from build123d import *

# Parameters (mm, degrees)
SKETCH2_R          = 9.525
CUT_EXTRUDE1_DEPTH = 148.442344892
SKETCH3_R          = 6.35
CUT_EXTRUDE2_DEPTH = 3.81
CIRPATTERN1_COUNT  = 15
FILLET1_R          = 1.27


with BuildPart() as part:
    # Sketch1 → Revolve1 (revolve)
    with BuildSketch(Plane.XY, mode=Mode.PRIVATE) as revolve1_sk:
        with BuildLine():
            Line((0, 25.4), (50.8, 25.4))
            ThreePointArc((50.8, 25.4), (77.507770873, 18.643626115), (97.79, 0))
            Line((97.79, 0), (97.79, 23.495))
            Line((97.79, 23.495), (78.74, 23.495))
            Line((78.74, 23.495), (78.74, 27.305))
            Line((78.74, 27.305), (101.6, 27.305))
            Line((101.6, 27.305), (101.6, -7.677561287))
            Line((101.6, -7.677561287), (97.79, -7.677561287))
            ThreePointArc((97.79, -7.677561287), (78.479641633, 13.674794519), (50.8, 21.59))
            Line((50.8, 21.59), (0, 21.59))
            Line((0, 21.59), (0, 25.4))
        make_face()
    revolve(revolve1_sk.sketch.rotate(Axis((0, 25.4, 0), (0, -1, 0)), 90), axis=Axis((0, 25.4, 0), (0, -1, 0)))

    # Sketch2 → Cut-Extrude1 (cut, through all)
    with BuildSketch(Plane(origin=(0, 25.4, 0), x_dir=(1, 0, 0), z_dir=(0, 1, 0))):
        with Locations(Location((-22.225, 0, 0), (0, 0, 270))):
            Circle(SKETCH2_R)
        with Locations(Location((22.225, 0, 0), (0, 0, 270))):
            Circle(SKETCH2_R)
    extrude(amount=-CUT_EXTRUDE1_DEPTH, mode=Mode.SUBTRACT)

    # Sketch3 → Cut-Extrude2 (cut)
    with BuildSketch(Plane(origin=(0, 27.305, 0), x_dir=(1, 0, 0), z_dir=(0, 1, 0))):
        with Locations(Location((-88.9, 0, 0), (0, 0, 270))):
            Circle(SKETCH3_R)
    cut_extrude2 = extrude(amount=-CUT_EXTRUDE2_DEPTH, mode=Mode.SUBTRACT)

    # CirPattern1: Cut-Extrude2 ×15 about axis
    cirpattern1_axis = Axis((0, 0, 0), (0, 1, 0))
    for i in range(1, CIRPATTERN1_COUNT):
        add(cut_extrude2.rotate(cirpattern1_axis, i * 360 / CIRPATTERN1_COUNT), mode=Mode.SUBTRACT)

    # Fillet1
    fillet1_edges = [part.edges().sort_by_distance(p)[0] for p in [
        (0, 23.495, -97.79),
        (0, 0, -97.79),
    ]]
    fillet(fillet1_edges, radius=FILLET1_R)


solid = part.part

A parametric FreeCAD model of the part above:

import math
import FreeCAD as App
import Part
import Sketcher
Q = App.Units.Quantity


def edges_at(feature, points):
    """Names of the edges that pass closest to the given points."""
    edges = feature.Shape.Edges
    near = lambda p: min(range(len(edges)), key=lambda i: edges[i].distToShape(Part.Vertex(*p))[0])
    return sorted({f"Edge{near(p) + 1}" for p in points})

doc = App.newDocument("Part")
body = doc.addObject("PartDesign::Body", "Body")

sketch1 = body.newObject("Sketcher::SketchObject", "Sketch")
sketch1.AttachmentSupport = (doc.getObject("XY_Plane"), [""])
sketch1.MapMode = "FlatFace"
sketch1.addGeometry([
    Part.LineSegment(App.Vector(50.8, 25.4, 0), App.Vector(0, 25.4, 0)),
    Part.LineSegment(App.Vector(0, 25.4, 0), App.Vector(0, 21.59, 0)),
    Part.LineSegment(App.Vector(0, 21.59, 0), App.Vector(50.8, 21.59, 0)),
    Part.ArcOfCircle(Part.Circle(App.Vector(50.8, -30.76575, 0), App.Vector(0, 0, 1), 52.35575), math.radians(26.166853), math.radians(90)),
    Part.LineSegment(App.Vector(97.79, -7.677561, 0), App.Vector(101.6, -7.677561, 0)),
    Part.LineSegment(App.Vector(101.6, -7.677561, 0), App.Vector(101.6, 27.305, 0)),
    Part.LineSegment(App.Vector(101.6, 27.305, 0), App.Vector(78.74, 27.305, 0)),
    Part.LineSegment(App.Vector(78.74, 27.305, 0), App.Vector(78.74, 23.495, 0)),
    Part.LineSegment(App.Vector(78.74, 23.495, 0), App.Vector(97.79, 23.495, 0)),
    Part.LineSegment(App.Vector(97.79, 23.495, 0), App.Vector(97.79, 0, 0)),
    Part.ArcOfCircle(Part.Circle(App.Vector(50.8, -30.76575, 0), App.Vector(0, 0, 1), 56.16575), math.radians(33.213961), math.radians(90)),
], False)
sketch1.addConstraint([
    Sketcher.Constraint("Coincident", 0, 2, 1, 1),
    Sketcher.Constraint("Coincident", 1, 2, 2, 1),
    Sketcher.Constraint("Tangent", 2, 2, 3, 2),
    Sketcher.Constraint("Coincident", 3, 1, 4, 1),
    Sketcher.Constraint("Coincident", 4, 2, 5, 1),
    Sketcher.Constraint("Coincident", 5, 2, 6, 1),
    Sketcher.Constraint("Coincident", 6, 2, 7, 1),
    Sketcher.Constraint("Coincident", 7, 2, 8, 1),
    Sketcher.Constraint("Coincident", 8, 2, 9, 1),
    Sketcher.Constraint("Coincident", 9, 2, 10, 1),
    Sketcher.Constraint("Tangent", 10, 2, 0, 1),
    Sketcher.Constraint("Horizontal", 0),
    Sketcher.Constraint("Vertical", 1),
    Sketcher.Constraint("Horizontal", 2),
    Sketcher.Constraint("Horizontal", 4),
    Sketcher.Constraint("Vertical", 5),
    Sketcher.Constraint("Horizontal", 6),
    Sketcher.Constraint("Vertical", 7),
    Sketcher.Constraint("Horizontal", 8),
    Sketcher.Constraint("Vertical", 9),
    Sketcher.Constraint("Coincident", 10, 3, 3, 3),
    Sketcher.Constraint("PointOnObject", 0, 2, -2),
    Sketcher.Constraint("PointOnObject", 9, 2, -1),
    Sketcher.Constraint("Vertical", 3, 1, 8, 2),
    Sketcher.Constraint("Equal", 4, 1),
    Sketcher.Constraint("Equal", 1, 7),
    Sketcher.Constraint("DistanceX", 0, 2, 0, 1, Q("2 in")),
    Sketcher.Constraint("DistanceX", 6, 2, 6, 1, Q("0.9 in")),
    Sketcher.Constraint("DistanceY", -1, 1, 0, 2, Q("1 in")),
    Sketcher.Constraint("DistanceX", -1, 1, 4, 2, Q("4 in")),
    Sketcher.Constraint("DistanceX", 4, 1, 4, 2, Q("0.15 in")),
    Sketcher.Constraint("DistanceY", 9, 2, 9, 1, Q("0.925 in")),
])
revolution = body.newObject("PartDesign::Revolution", "Revolution")
revolution.Profile = sketch1
revolution.ReferenceAxis = (sketch1, ["V_Axis"])
revolution.Angle = 360

sketch2 = body.newObject("Sketcher::SketchObject", "Sketch001")
sketch2.AttachmentSupport = (doc.getObject("XZ_Plane"), [""])
sketch2.MapMode = "FlatFace"
sketch2.AttachmentOffset = App.Placement(App.Vector(0, 0, -1 * 25.4), App.Rotation())
sketch2.addGeometry([
    Part.Circle(App.Vector(-22.225, 0, 0), App.Vector(0, 0, 1), 9.525),
    Part.Circle(App.Vector(22.225, 0, 0), App.Vector(0, 0, 1), 9.525),
], False)
sketch2.addConstraint([
    Sketcher.Constraint("Equal", 0, 1),
    Sketcher.Constraint("Symmetric", 0, 3, 1, 3, -1, 1),
    Sketcher.Constraint("PointOnObject", 0, 3, -1),
    Sketcher.Constraint("Diameter", 0, Q("0.75 in")),
    Sketcher.Constraint("DistanceX", 0, 3, 1, 3, Q("1.75 in")),
])
pocket1 = body.newObject("PartDesign::Pocket", "Pocket")
pocket1.Profile = sketch2
pocket1.Type = "ThroughAll"
pocket1.Reversed = True

sketch3 = body.newObject("Sketcher::SketchObject", "Sketch002")
sketch3.AttachmentSupport = (doc.getObject("XZ_Plane"), [""])
sketch3.MapMode = "FlatFace"
sketch3.AttachmentOffset = App.Placement(App.Vector(0, 0, -1.075 * 25.4), App.Rotation())
sketch3.addGeometry(Part.Circle(App.Vector(-88.9, 0, 0), App.Vector(0, 0, 1), 6.35), False)
sketch3.addConstraint([
    Sketcher.Constraint("PointOnObject", 0, 3, -1),
    Sketcher.Constraint("Diameter", 0, Q("0.5 in")),
    Sketcher.Constraint("DistanceX", 0, 3, -1, 1, Q("3.5 in")),
])
pocket2 = body.newObject("PartDesign::Pocket", "Pocket001")
pocket2.Profile = sketch3
pocket2.Length = Q("0.15 in")
pocket2.Reversed = True
doc.recompute()

polarpattern = body.newObject("PartDesign::PolarPattern", "PolarPattern")
polarpattern.Originals = [pocket2]
polarpattern.Axis = (doc.getObject("Y_Axis"), [""])
polarpattern.Angle = 360
polarpattern.Occurrences = 15
body.Tip = polarpattern
doc.recompute()

fillet = body.newObject("PartDesign::Fillet", "Fillet")
fillet.Base = (polarpattern, edges_at(polarpattern, [(0, 23.495, -97.79), (0, 0, -97.79)]))
fillet.Radius = Q("0.05 in")

doc.recompute()
